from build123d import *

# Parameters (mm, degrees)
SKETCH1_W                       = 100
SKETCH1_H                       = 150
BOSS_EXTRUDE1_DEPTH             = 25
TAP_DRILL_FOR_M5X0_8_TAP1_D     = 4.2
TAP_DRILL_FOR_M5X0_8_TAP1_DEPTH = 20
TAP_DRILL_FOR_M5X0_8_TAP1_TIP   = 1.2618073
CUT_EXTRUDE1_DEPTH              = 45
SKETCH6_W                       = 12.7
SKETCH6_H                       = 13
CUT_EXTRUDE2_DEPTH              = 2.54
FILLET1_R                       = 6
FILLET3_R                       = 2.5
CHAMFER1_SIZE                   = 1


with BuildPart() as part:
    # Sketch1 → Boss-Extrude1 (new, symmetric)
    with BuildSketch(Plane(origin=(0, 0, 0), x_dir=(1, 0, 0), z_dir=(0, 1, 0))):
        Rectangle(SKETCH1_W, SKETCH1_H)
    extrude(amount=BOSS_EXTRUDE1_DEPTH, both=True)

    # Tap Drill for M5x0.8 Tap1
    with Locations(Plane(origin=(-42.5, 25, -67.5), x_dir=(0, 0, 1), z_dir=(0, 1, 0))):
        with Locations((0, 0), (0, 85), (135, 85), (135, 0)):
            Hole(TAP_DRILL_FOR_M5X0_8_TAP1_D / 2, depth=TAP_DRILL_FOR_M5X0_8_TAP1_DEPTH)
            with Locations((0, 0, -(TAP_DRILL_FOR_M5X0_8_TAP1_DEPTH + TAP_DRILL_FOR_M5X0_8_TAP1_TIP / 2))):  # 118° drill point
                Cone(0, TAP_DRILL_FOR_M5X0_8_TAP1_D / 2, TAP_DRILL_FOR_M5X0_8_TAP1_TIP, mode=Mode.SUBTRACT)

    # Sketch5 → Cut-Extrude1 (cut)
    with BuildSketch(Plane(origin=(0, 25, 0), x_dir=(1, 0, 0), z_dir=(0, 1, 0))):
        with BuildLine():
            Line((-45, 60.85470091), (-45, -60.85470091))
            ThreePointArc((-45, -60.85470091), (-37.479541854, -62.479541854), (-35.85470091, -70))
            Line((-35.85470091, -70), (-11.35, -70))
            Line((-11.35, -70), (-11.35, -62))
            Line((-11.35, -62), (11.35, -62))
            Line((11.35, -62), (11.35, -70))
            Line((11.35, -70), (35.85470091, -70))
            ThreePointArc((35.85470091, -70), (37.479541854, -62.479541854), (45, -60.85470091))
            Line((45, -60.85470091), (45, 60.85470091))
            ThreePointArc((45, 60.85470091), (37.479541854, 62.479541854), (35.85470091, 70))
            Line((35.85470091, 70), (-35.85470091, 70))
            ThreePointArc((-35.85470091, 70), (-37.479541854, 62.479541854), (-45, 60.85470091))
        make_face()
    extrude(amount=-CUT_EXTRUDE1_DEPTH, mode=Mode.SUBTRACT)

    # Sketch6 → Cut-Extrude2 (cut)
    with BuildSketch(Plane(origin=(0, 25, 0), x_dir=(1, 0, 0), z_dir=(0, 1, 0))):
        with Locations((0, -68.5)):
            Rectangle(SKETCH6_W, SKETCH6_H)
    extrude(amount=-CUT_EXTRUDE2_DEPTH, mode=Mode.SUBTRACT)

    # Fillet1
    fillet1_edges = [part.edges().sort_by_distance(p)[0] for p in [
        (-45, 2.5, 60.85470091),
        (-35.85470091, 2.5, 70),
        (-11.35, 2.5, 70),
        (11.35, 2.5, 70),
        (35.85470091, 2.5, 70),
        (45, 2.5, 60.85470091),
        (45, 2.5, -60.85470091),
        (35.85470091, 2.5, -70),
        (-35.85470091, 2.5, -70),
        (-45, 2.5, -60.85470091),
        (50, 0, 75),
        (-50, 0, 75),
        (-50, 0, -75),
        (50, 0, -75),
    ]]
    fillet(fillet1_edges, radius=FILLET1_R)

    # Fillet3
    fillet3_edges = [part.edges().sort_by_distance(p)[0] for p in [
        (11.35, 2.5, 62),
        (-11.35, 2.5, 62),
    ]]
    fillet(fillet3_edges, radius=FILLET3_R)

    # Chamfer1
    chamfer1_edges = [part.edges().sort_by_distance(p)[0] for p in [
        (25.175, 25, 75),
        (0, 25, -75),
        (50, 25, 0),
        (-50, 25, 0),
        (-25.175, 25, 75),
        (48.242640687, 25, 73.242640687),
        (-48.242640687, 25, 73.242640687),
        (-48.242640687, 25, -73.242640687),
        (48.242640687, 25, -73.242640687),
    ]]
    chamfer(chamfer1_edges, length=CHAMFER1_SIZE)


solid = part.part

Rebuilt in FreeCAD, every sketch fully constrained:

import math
import FreeCAD as App
import Part
import Sketcher
Q = App.Units.Quantity


def edges_at(feature, points):
    """Names of the edges that pass closest to the given points."""
    edges = feature.Shape.Edges
    near = lambda p: min(range(len(edges)), key=lambda i: edges[i].distToShape(Part.Vertex(*p))[0])
    return sorted({f"Edge{near(p) + 1}" for p in points})

doc = App.newDocument("Part")
body = doc.addObject("PartDesign::Body", "Body")

# Sketch on XZ plane
sketch1 = doc.addObject("Sketcher::SketchObject", "Sketch")
body.addObject(sketch1)
sketch1.AttachmentSupport = (doc.XZ_Plane, [""])
sketch1.MapMode = "FlatFace"
sketch1.addGeometry([
    Part.LineSegment(App.Vector(-50, -75, 0), App.Vector(-50, 75, 0)),
    Part.LineSegment(App.Vector(-50, 75, 0), App.Vector(50, 75, 0)),
    Part.LineSegment(App.Vector(50, 75, 0), App.Vector(50, -75, 0)),
    Part.LineSegment(App.Vector(50, -75, 0), App.Vector(-50, -75, 0)),
], False)
sketch1.addConstraint([
    Sketcher.Constraint("Coincident", 0, 2, 1, 1),
    Sketcher.Constraint("Coincident", 1, 2, 2, 1),
    Sketcher.Constraint("Coincident", 2, 2, 3, 1),
    Sketcher.Constraint("Coincident", 3, 2, 0, 1),
    Sketcher.Constraint("Vertical", 0),
    Sketcher.Constraint("Horizontal", 1),
    Sketcher.Constraint("Vertical", 2),
    Sketcher.Constraint("Horizontal", 3),
    Sketcher.Constraint("Symmetric", 0, 2, 2, 2, -1, 1),
    Sketcher.Constraint("DistanceX", 1, 1, 1, 2, Q("100 mm")),
    Sketcher.Constraint("DistanceY", 0, 1, 0, 2, Q("150 mm")),
])
pad1 = doc.addObject("PartDesign::Pad", "Pad")
body.addObject(pad1)
pad1.Profile = sketch1
pad1.Length = 50
pad1.Midplane = True

# Sketch on XZ plane
sketch2 = doc.addObject("Sketcher::SketchObject", "Sketch001")
body.addObject(sketch2)
sketch2.AttachmentSupport = (doc.XZ_Plane, [""])
sketch2.MapMode = "FlatFace"
sketch2.AttachmentOffset = App.Placement(App.Vector(0, 0, -25), App.Rotation())
sketch2.addGeometry([
    Part.Circle(App.Vector(-42.5, -67.5, 0), App.Vector(0, 0, 1), 2.1),
    Part.Circle(App.Vector(42.5, -67.5, 0), App.Vector(0, 0, 1), 2.1),
    Part.Circle(App.Vector(42.5, 67.5, 0), App.Vector(0, 0, 1), 2.1),
    Part.Circle(App.Vector(-42.5, 67.5, 0), App.Vector(0, 0, 1), 2.1),
], False)
sketch2.addConstraint([
    Sketcher.Constraint("Equal", 0, 1),
    Sketcher.Constraint("Equal", 1, 2),
    Sketcher.Constraint("Equal", 2, 3),
    Sketcher.Constraint("Symmetric", 0, 3, 2, 3, -1, 1),
    Sketcher.Constraint("Symmetric", 1, 3, 3, 3, -1, 1),
    Sketcher.Constraint("Symmetric", 0, 3, 1, 3, -2),
    Sketcher.Constraint("Diameter", 0, Q("4.2 mm")),
    Sketcher.Constraint("DistanceX", 0, 3, 1, 3, Q("85 mm")),
    Sketcher.Constraint("DistanceY", 1, 3, 2, 3, Q("135 mm")),
])
doc.recompute()
hole = doc.addObject("PartDesign::Hole", "Hole")
body.addObject(hole)
hole.Profile = sketch2
hole.ThreadType = "None"
hole.Diameter = 4.2
hole.DepthType = "Dimension"
hole.Depth = 20
hole.DrillPoint = "Angled"
hole.DrillPointAngle = 118
hole.Reversed = True

# Sketch on XZ plane
sketch3 = doc.addObject("Sketcher::SketchObject", "Sketch002")
body.addObject(sketch3)
sketch3.AttachmentSupport = (doc.XZ_Plane, [""])
sketch3.MapMode = "FlatFace"
sketch3.AttachmentOffset = App.Placement(App.Vector(0, 0, -25), App.Rotation())
sketch3.addGeometry([
    Part.LineSegment(App.Vector(-45, -60.854701, 0), App.Vector(-45, 60.854701, 0)),  # 0
    Part.ArcOfCircle(Part.Circle(App.Vector(-42.5, 67.5, 0), App.Vector(0, 0, 1), 7.1), math.radians(-110.61659), math.radians(20.61659)),  # 1
    Part.LineSegment(App.Vector(-35.854701, 70, 0), App.Vector(-11.35, 70, 0)),  # 2
    Part.LineSegment(App.Vector(-11.35, 70, 0), App.Vector(-11.35, 62, 0)),  # 3
    Part.LineSegment(App.Vector(-11.35, 62, 0), App.Vector(11.35, 62, 0)),  # 4
    Part.LineSegment(App.Vector(11.35, 62, 0), App.Vector(11.35, 70, 0)),  # 5
    Part.LineSegment(App.Vector(11.35, 70, 0), App.Vector(35.854701, 70, 0)),  # 6
    Part.ArcOfCircle(Part.Circle(App.Vector(42.5, 67.5, 0), App.Vector(0, 0, 1), 7.1), math.radians(159.38341), math.radians(290.61659)),  # 7
    Part.LineSegment(App.Vector(45, 60.854701, 0), App.Vector(45, -60.854701, 0)),  # 8
    Part.ArcOfCircle(Part.Circle(App.Vector(42.5, -67.5, 0), App.Vector(0, 0, 1), 7.1), math.radians(69.38341), math.radians(200.61659)),  # 9
    Part.LineSegment(App.Vector(35.854701, -70, 0), App.Vector(-35.854701, -70, 0)),  # 10
    Part.ArcOfCircle(Part.Circle(App.Vector(-42.5, -67.5, 0), App.Vector(0, 0, 1), 7.1), math.radians(-20.61659), math.radians(110.61659)),  # 11
], False)
sketch3.addConstraint([
    Sketcher.Constraint("Coincident", 0, 2, 1, 1),
    Sketcher.Constraint("Coincident", 1, 2, 2, 1),
    Sketcher.Constraint("Coincident", 2, 2, 3, 1),
    Sketcher.Constraint("Coincident", 3, 2, 4, 1),
    Sketcher.Constraint("Coincident", 4, 2, 5, 1),
    Sketcher.Constraint("Coincident", 5, 2, 6, 1),
    Sketcher.Constraint("Coincident", 6, 2, 7, 1),
    Sketcher.Constraint("Coincident", 7, 2, 8, 1),
    Sketcher.Constraint("Coincident", 8, 2, 9, 1),
    Sketcher.Constraint("Coincident", 9, 2, 10, 1),
    Sketcher.Constraint("Coincident", 10, 2, 11, 1),
    Sketcher.Constraint("Coincident", 11, 2, 0, 1),
    Sketcher.Constraint("Vertical", 0),
    Sketcher.Constraint("Horizontal", 2),
    Sketcher.Constraint("Vertical", 3),
    Sketcher.Constraint("Horizontal", 4),
    Sketcher.Constraint("Vertical", 5),
    Sketcher.Constraint("Horizontal", 6),
    Sketcher.Constraint("Vertical", 8),
    Sketcher.Constraint("Horizontal", 10),
    Sketcher.Constraint("Equal", 1, 7),
    Sketcher.Constraint("Equal", 7, 9),
    Sketcher.Constraint("Equal", 9, 11),
    Sketcher.Constraint("Symmetric", 1, 3, 9, 3, -1, 1),
    Sketcher.Constraint("Symmetric", 7, 3, 11, 3, -1, 1),
    Sketcher.Constraint("Symmetric", 1, 3, 7, 3, -2),
    Sketcher.Constraint("Symmetric", 2, 2, 5, 2, -2),
    Sketcher.Constraint("Horizontal", 0, 2, 7, 2),
    Sketcher.Constraint("Vertical", 6, 2, 9, 2),
    Sketcher.Constraint("Radius", 1, Q("7.1 mm")),
    Sketcher.Constraint("DistanceY", 3, 2, 3, 1, Q("8 mm")),
    Sketcher.Constraint("DistanceX", 4, 1, 4, 2, Q("22.7 mm")),
    Sketcher.Constraint("DistanceX", 0, 2, -1, 1, Q("45 mm")),
    Sketcher.Constraint("DistanceY", -1, 1, 1, 2, Q("70 mm")),
    Sketcher.Constraint("DistanceX", 1, 3, 7, 3, Q("85 mm")),
    Sketcher.Constraint("DistanceY", 9, 3, 7, 3, Q("135 mm")),
])
pocket1 = doc.addObject("PartDesign::Pocket", "Pocket")
body.addObject(pocket1)
pocket1.Profile = sketch3
pocket1.Length = 45
pocket1.Reversed = True

# Sketch on XZ plane
sketch4 = doc.addObject("Sketcher::SketchObject", "Sketch003")
body.addObject(sketch4)
sketch4.AttachmentSupport = (doc.XZ_Plane, [""])
sketch4.MapMode = "FlatFace"
sketch4.AttachmentOffset = App.Placement(App.Vector(0, 0, -25), App.Rotation())
sketch4.addGeometry([
    Part.LineSegment(App.Vector(-6.35, 62, 0), App.Vector(-6.35, 75, 0)),
    Part.LineSegment(App.Vector(-6.35, 75, 0), App.Vector(6.35, 75, 0)),
    Part.LineSegment(App.Vector(6.35, 75, 0), App.Vector(6.35, 62, 0)),
    Part.LineSegment(App.Vector(6.35, 62, 0), App.Vector(-6.35, 62, 0)),
], False)
sketch4.addConstraint([
    Sketcher.Constraint("Coincident", 0, 2, 1, 1),
    Sketcher.Constraint("Coincident", 1, 2, 2, 1),
    Sketcher.Constraint("Coincident", 2, 2, 3, 1),
    Sketcher.Constraint("Coincident", 3, 2, 0, 1),
    Sketcher.Constraint("Vertical", 0),
    Sketcher.Constraint("Horizontal", 1),
    Sketcher.Constraint("Vertical", 2),
    Sketcher.Constraint("Horizontal", 3),
    Sketcher.Constraint("DistanceY", 0, 1, 0, 2, Q("13 mm")),
    Sketcher.Constraint("DistanceX", 1, 1, 1, 2, Q("12.7 mm")),
    Sketcher.Constraint("DistanceY", -1, 1, 0, 2, Q("75 mm")),
    Sketcher.Constraint("DistanceX", 0, 2, -1, 1, Q("6.35 mm")),
])
pocket2 = doc.addObject("PartDesign::Pocket", "Pocket001")
body.addObject(pocket2)
pocket2.Profile = sketch4
pocket2.Length = 2.54
pocket2.Reversed = True
doc.recompute()

fillet = doc.addObject("PartDesign::Fillet", "Fillet")
body.addObject(fillet)
fillet.Base = (pocket2, edges_at(pocket2, [
    (-45, 2.5, 60.855),
    (-35.855, 2.5, 70),
    (-11.35, 2.5, 70),
    (11.35, 2.5, 70),
    (35.855, 2.5, 70),
    (45, 2.5, 60.855),
    (45, 2.5, -60.855),
    (35.855, 2.5, -70),
    (-35.855, 2.5, -70),
    (-45, 2.5, -60.855),
    (50, 0, 75),
    (-50, 0, 75),
    (-50, 0, -75),
    (50, 0, -75),
]))
fillet.Radius = 6
doc.recompute()

fillet2 = doc.addObject("PartDesign::Fillet", "Fillet001")
body.addObject(fillet2)
fillet2.Base = (fillet, edges_at(fillet, [(11.35, 2.5, 62), (-11.35, 2.5, 62)]))
fillet2.Radius = 2.5
doc.recompute()

chamfer = doc.addObject("PartDesign::Chamfer", "Chamfer")
body.addObject(chamfer)
chamfer.Base = (fillet2, edges_at(fillet2, [
    (25.175, 25, 75),
    (0, 25, -75),
    (50, 25, 0),
    (-50, 25, 0),
    (-25.175, 25, 75),
    (48.243, 25, 73.243),
    (-48.243, 25, 73.243),
    (-48.243, 25, -73.243),
    (48.243, 25, -73.243),
]))
chamfer.Size = 1

doc.recompute()
